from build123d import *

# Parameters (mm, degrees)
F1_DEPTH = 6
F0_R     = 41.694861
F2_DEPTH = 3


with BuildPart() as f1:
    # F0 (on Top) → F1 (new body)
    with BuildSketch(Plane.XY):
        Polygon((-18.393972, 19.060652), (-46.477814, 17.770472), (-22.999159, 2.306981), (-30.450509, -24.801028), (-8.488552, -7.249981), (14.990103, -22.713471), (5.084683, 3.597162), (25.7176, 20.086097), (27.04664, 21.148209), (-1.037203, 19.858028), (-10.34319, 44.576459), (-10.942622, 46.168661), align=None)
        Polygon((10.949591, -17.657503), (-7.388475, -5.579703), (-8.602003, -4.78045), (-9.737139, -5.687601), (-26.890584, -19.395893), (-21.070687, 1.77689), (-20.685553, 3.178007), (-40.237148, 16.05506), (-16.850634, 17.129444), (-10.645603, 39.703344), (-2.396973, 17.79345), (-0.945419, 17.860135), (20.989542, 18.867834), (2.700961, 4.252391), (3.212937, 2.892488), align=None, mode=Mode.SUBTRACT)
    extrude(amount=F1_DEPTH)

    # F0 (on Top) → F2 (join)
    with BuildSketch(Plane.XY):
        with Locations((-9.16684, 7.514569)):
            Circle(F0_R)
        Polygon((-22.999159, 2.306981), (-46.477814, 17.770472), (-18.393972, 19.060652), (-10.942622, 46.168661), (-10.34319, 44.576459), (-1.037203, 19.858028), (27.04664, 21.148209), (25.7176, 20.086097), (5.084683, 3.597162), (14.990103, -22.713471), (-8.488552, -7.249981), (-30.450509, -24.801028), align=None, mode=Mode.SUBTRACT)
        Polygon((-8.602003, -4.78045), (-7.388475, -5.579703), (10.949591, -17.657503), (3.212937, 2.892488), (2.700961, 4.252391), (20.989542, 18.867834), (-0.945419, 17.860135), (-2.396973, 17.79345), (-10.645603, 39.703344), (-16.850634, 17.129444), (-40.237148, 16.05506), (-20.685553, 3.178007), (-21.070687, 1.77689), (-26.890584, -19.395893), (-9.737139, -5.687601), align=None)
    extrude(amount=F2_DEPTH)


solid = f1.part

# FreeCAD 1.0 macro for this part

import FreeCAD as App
import Part
import Sketcher

V = App.Vector
Q = App.Units.Quantity


def add_polygon(sketch, points):
    """Adds a closed chain of lines whose ends are joined by coincident constraints."""
    first, n = sketch.GeometryCount, len(points)
    for a, b in zip(points, points[1:] + points[:1]):
        sketch.addGeometry(Part.LineSegment(App.Vector(*a, 0), App.Vector(*b, 0)), False)
    for i in range(n):
        sketch.addConstraint(Sketcher.Constraint("Coincident", first + i, 2, first + (i + 1) % n, 1))

doc = App.newDocument("Part")
params = doc.addObject("Spreadsheet::Sheet", "Params")
for row, (alias, value) in enumerate([
    ("pad1_length", "6 mm"),
    ("pad2_length", "3 mm"),
], start=1):
    params.set(f"A{row}", alias)
    params.set(f"B{row}", "=" + value)
    params.setAlias(f"B{row}", alias)

body = doc.addObject("PartDesign::Body", "Body")

# Sketch on XY plane
sketch1 = body.newObject("Sketcher::SketchObject", "Sketch")
sketch1.AttachmentSupport = (doc.getObject("XY_Plane"), [""])
sketch1.MapMode = "FlatFace"
add_polygon(sketch1, [(-18.393972, 19.060652), (-46.477814, 17.770472), (-22.999159, 2.306981), (-30.450509, -24.801028), (-8.488552, -7.249981), (14.990103, -22.713471), (5.084683, 3.597162), (25.7176, 20.086097), (27.04664, 21.148209), (-1.037203, 19.858028), (-10.34319, 44.576459), (-10.942622, 46.168661)])  # lines 0-11
add_polygon(sketch1, [(3.212937, 2.892488), (10.949591, -17.657503), (-7.388475, -5.579703), (-8.602003, -4.78045), (-9.737139, -5.687601), (-26.890584, -19.395893), (-21.070687, 1.77689), (-20.685553, 3.178007), (-40.237148, 16.05506), (-16.850634, 17.129444), (-10.645603, 39.703344), (-2.396973, 17.79345), (-0.945419, 17.860135), (20.989542, 18.867834), (2.700961, 4.252391)])  # lines 12-26
sketch1.addConstraint([
    Sketcher.Constraint("Parallel", 1, 4),
    Sketcher.Constraint("Parallel", 3, 6),
    Sketcher.Constraint("Parallel", 6, 7),
    Sketcher.Constraint("Parallel", 0, 8),
    Sketcher.Constraint("Parallel", 5, 9),
    Sketcher.Constraint("Parallel", 9, 10),
    Sketcher.Constraint("Parallel", 2, 11),
    Sketcher.Constraint("Parallel", 10, 12),
    Sketcher.Constraint("Parallel", 4, 13),
    Sketcher.Constraint("Parallel", 13, 14),
    Sketcher.Constraint("Parallel", 7, 15),
    Sketcher.Constraint("Parallel", 15, 16),
    Sketcher.Constraint("Parallel", 11, 17),
    Sketcher.Constraint("Parallel", 17, 18),
    Sketcher.Constraint("Parallel", 14, 19),
    Sketcher.Constraint("Parallel", 8, 20),
    Sketcher.Constraint("Parallel", 18, 21),
    Sketcher.Constraint("Parallel", 12, 22),
    Sketcher.Constraint("Parallel", 20, 23),
    Sketcher.Constraint("Parallel", 23, 24),
    Sketcher.Constraint("Parallel", 16, 25),
    Sketcher.Constraint("Parallel", 22, 26),
    Sketcher.Constraint("Equal", 0, 1),
    Sketcher.Constraint("Equal", 1, 2),
    Sketcher.Constraint("Equal", 2, 3),
    Sketcher.Constraint("Equal", 3, 4),
    Sketcher.Constraint("Equal", 4, 5),
    Sketcher.Constraint("Equal", 5, 8),
    Sketcher.Constraint("Equal", 6, 9),
    Sketcher.Constraint("Equal", 7, 10),
    Sketcher.Constraint("Equal", 8, 11),
    Sketcher.Constraint("Equal", 12, 13),
    Sketcher.Constraint("Equal", 14, 15),
    Sketcher.Constraint("Equal", 13, 16),
    Sketcher.Constraint("Equal", 16, 17),
    Sketcher.Constraint("Equal", 15, 18),
    Sketcher.Constraint("Equal", 19, 20),
    Sketcher.Constraint("Equal", 20, 21),
    Sketcher.Constraint("Equal", 21, 22),
    Sketcher.Constraint("Equal", 18, 23),
    Sketcher.Constraint("Equal", 17, 24),
    Sketcher.Constraint("Equal", 22, 25),
    Sketcher.Constraint("DistanceX", 11, 2, 22, 2, Q("15.996999 mm")),
    Sketcher.Constraint("Distance", 10, Q("1.701301 mm")),
    Sketcher.Constraint("DistanceX", -1, 1, 6, 2, Q("25.7176 mm")),
    Sketcher.Constraint("DistanceY", 15, 2, -1, 1, Q("5.687601 mm")),
    Sketcher.Constraint("DistanceY", 2, 2, 0, 2, Q("42.5715 mm")),
    Sketcher.Constraint("DistanceX", 1, 2, 7, 2, Q("50.045799 mm")),
    Sketcher.Constraint("DistanceY", 12, 2, 13, 2, Q("12.0778 mm")),
    Sketcher.Constraint("DistanceX", 21, 2, 8, 2, Q("9.6084 mm")),
    Sketcher.Constraint("DistanceY", 20, 2, 21, 2, Q("22.5739 mm")),
    Sketcher.Constraint("DistanceY", 23, 2, 24, 2, Q("1.007699 mm")),
    Sketcher.Constraint("DistanceY", -1, 1, 1, 2, Q("2.306981 mm")),
    Sketcher.Constraint("DistanceX", -1, 1, 12, 2, Q("10.949591 mm")),
])
pad1 = body.newObject("PartDesign::Pad", "Pad")
pad1.Profile = sketch1
pad1.setExpression("Length", "Params.pad1_length")

# Sketch on XY plane
sketch2 = body.newObject("Sketcher::SketchObject", "Sketch001")
sketch2.AttachmentSupport = (doc.getObject("XY_Plane"), [""])
sketch2.MapMode = "FlatFace"
sketch2.addGeometry(Part.Circle(V(-9.16684, 7.514569, 0), V(0, 0, 1), 41.694861), False)  # 0
add_polygon(sketch2, [(-30.450509, -24.801028), (-22.999159, 2.306981), (-46.477814, 17.770472), (-18.393972, 19.060652), (-10.942622, 46.168661), (-10.34319, 44.576459), (-1.037203, 19.858028), (27.04664, 21.148209), (25.7176, 20.086097), (5.084683, 3.597162), (14.990103, -22.713471), (-8.488552, -7.249981)])  # lines 1-12
add_polygon(sketch2, [(-8.602003, -4.78045), (-7.388475, -5.579703), (10.949591, -17.657503), (3.212937, 2.892488), (2.700961, 4.252391), (20.989542, 18.867834), (-0.945419, 17.860135), (-2.396973, 17.79345), (-10.645603, 39.703344), (-16.850634, 17.129444), (-40.237148, 16.05506), (-20.685553, 3.178007), (-21.070687, 1.77689), (-26.890584, -19.395893), (-9.737139, -5.687601)])  # lines 13-27
sketch2.addConstraint([
    Sketcher.Constraint("Diameter", 0, Q("83.389722 mm")),
    Sketcher.Constraint("Distance", 5, Q("1.701301 mm")),
    Sketcher.Constraint("DistanceX", -1, 1, 8, 2, Q("25.7176 mm")),
    Sketcher.Constraint("DistanceY", 26, 2, -1, 1, Q("5.687601 mm")),
    Sketcher.Constraint("DistanceY", 14, 2, 13, 2, Q("12.0778 mm")),
    Sketcher.Constraint("DistanceX", 0, 3, 16, 2, Q("11.867801 mm")),
    Sketcher.Constraint("DistanceX", 20, 2, 6, 2, Q("9.6084 mm")),
    Sketcher.Constraint("DistanceY", 25, 2, 23, 2, Q("22.5739 mm")),
    Sketcher.Constraint("DistanceX", 26, 2, 0, 3, Q("0.570299 mm")),
    Sketcher.Constraint("Distance", 6, Q("26.412161 mm")),
    Sketcher.Constraint("Distance", 9, Q("26.412161 mm")),
    Sketcher.Constraint("Distance", 17, Q("23.41118 mm")),
    Sketcher.Constraint("Distance", 20, Q("23.41118 mm")),
    Sketcher.Constraint("Distance", 21, Q("23.41118 mm")),
    Sketcher.Constraint("Distance", 22, Q("23.41118 mm")),
    Sketcher.Constraint("Distance", 23, Q("23.41118 mm")),
    Sketcher.Constraint("DistanceX", 0, 3, -1, 1, Q("9.16684 mm")),
    Sketcher.Constraint("DistanceY", -1, 1, 0, 3, Q("7.514569 mm")),
    Sketcher.Constraint("DistanceX", 1, 2, -1, 1, Q("22.999159 mm")),
    Sketcher.Constraint("DistanceY", -1, 1, 1, 2, Q("2.306981 mm")),
    Sketcher.Constraint("DistanceY", -1, 1, 4, 2, Q("46.168661 mm")),
    Sketcher.Constraint("DistanceX", 5, 2, -1, 1, Q("10.34319 mm")),
    Sketcher.Constraint("DistanceY", -1, 1, 5, 2, Q("44.576459 mm")),
    Sketcher.Constraint("DistanceY", -1, 1, 6, 2, Q("19.858028 mm")),
    Sketcher.Constraint("DistanceX", -1, 1, 7, 2, Q("27.04664 mm")),
    Sketcher.Constraint("DistanceY", -1, 1, 7, 2, Q("21.148209 mm")),
    Sketcher.Constraint("DistanceY", -1, 1, 9, 2, Q("3.597162 mm")),
    Sketcher.Constraint("DistanceY", 10, 2, -1, 1, Q("22.713471 mm")),
    Sketcher.Constraint("DistanceY", 11, 2, -1, 1, Q("7.249981 mm")),
    Sketcher.Constraint("DistanceX", 12, 2, -1, 1, Q("30.450509 mm")),
    Sketcher.Constraint("DistanceX", -1, 1, 14, 2, Q("10.949591 mm")),
    Sketcher.Constraint("DistanceY", -1, 1, 15, 2, Q("2.892488 mm")),
    Sketcher.Constraint("DistanceY", -1, 1, 16, 2, Q("4.252391 mm")),
    Sketcher.Constraint("DistanceX", -1, 1, 17, 2, Q("20.989542 mm")),
    Sketcher.Constraint("DistanceX", 18, 2, -1, 1, Q("0.945419 mm")),
    Sketcher.Constraint("DistanceY", -1, 1, 19, 2, Q("17.79345 mm")),
    Sketcher.Constraint("DistanceY", -1, 1, 22, 2, Q("16.05506 mm")),
    Sketcher.Constraint("DistanceY", -1, 1, 24, 2, Q("1.77689 mm")),
    Sketcher.Constraint("DistanceY", 27, 2, -1, 1, Q("4.78045 mm")),
    Sketcher.Constraint("DistanceY", 1, 2, 2, 2, Q("15.463491 mm")),
    Sketcher.Constraint("DistanceY", 1, 2, 3, 2, Q("16.753671 mm")),
    Sketcher.Constraint("DistanceX", 3, 2, 4, 2, Q("7.45135 mm")),
    Sketcher.Constraint("DistanceY", 6, 2, 8, 2, Q("0.228069 mm")),
    Sketcher.Constraint("DistanceX", 9, 2, 10, 2, Q("9.90542 mm")),
    Sketcher.Constraint("DistanceX", 0, 3, 11, 2, Q("0.678288 mm")),
    Sketcher.Constraint("DistanceY", 12, 2, 1, 2, Q("27.108009 mm")),
    Sketcher.Constraint("DistanceX", 13, 2, 6, 2, Q("6.351272 mm")),
    Sketcher.Constraint("DistanceY", 13, 2, 6, 2, Q("25.437731 mm")),
    Sketcher.Constraint("DistanceX", 11, 2, 15, 2, Q("11.701489 mm")),
    Sketcher.Constraint("DistanceX", 19, 2, 6, 2, Q("1.35977 mm")),
    Sketcher.Constraint("DistanceX", 3, 2, 21, 2, Q("1.543338 mm")),
    Sketcher.Constraint("DistanceY", 21, 2, 18, 2, Q("0.730691 mm")),
    Sketcher.Constraint("DistanceY", 23, 2, 0, 3, Q("4.336562 mm")),
    Sketcher.Constraint("DistanceX", 1, 2, 24, 2, Q("1.928472 mm")),
    Sketcher.Constraint("DistanceX", 25, 2, 11, 2, Q("18.402032 mm")),
    Sketcher.Constraint("DistanceX", 27, 2, 13, 2, Q("1.213528 mm")),
    Sketcher.Constraint("Distance", 2, Q("28.113463 mm")),
])
pad2 = body.newObject("PartDesign::Pad", "Pad001")
pad2.Profile = sketch2
pad2.setExpression("Length", "Params.pad2_length")

doc.recompute()
